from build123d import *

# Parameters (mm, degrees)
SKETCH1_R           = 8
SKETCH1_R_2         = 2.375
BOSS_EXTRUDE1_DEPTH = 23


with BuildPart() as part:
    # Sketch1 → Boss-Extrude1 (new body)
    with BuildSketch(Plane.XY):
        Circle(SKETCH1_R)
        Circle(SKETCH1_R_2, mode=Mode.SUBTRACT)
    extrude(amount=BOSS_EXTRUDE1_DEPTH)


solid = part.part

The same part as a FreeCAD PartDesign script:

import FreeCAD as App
import Part
import Sketcher

doc = App.newDocument("Part")
body = doc.addObject("PartDesign::Body", "Body")

sketch1 = body.newObject("Sketcher::SketchObject", "Sketch")
sketch1.AttachmentSupport = (doc.getObject("XY_Plane"), [""])
sketch1.MapMode = "FlatFace"
sketch1.addGeometry(Part.Circle(App.Vector(0, 0, 0), App.Vector(0, 0, 1), 8), False)
sketch1.addGeometry(Part.Circle(App.Vector(0, 0, 0), App.Vector(0, 0, 1), 2.4), False)
sketch1.addConstraint(Sketcher.Constraint("Coincident", 0, 3, -1, 1))
sketch1.addConstraint(Sketcher.Constraint("Coincident", 1, 3, -1, 1))
sketch1.addConstraint(Sketcher.Constraint("Diameter", 0, 16.0))
sketch1.addConstraint(Sketcher.Constraint("Diameter", 1, 4.75))
pad1 = body.newObject("PartDesign::Pad", "Pad")
pad1.Profile = sketch1
pad1.Length = 23

doc.recompute()
